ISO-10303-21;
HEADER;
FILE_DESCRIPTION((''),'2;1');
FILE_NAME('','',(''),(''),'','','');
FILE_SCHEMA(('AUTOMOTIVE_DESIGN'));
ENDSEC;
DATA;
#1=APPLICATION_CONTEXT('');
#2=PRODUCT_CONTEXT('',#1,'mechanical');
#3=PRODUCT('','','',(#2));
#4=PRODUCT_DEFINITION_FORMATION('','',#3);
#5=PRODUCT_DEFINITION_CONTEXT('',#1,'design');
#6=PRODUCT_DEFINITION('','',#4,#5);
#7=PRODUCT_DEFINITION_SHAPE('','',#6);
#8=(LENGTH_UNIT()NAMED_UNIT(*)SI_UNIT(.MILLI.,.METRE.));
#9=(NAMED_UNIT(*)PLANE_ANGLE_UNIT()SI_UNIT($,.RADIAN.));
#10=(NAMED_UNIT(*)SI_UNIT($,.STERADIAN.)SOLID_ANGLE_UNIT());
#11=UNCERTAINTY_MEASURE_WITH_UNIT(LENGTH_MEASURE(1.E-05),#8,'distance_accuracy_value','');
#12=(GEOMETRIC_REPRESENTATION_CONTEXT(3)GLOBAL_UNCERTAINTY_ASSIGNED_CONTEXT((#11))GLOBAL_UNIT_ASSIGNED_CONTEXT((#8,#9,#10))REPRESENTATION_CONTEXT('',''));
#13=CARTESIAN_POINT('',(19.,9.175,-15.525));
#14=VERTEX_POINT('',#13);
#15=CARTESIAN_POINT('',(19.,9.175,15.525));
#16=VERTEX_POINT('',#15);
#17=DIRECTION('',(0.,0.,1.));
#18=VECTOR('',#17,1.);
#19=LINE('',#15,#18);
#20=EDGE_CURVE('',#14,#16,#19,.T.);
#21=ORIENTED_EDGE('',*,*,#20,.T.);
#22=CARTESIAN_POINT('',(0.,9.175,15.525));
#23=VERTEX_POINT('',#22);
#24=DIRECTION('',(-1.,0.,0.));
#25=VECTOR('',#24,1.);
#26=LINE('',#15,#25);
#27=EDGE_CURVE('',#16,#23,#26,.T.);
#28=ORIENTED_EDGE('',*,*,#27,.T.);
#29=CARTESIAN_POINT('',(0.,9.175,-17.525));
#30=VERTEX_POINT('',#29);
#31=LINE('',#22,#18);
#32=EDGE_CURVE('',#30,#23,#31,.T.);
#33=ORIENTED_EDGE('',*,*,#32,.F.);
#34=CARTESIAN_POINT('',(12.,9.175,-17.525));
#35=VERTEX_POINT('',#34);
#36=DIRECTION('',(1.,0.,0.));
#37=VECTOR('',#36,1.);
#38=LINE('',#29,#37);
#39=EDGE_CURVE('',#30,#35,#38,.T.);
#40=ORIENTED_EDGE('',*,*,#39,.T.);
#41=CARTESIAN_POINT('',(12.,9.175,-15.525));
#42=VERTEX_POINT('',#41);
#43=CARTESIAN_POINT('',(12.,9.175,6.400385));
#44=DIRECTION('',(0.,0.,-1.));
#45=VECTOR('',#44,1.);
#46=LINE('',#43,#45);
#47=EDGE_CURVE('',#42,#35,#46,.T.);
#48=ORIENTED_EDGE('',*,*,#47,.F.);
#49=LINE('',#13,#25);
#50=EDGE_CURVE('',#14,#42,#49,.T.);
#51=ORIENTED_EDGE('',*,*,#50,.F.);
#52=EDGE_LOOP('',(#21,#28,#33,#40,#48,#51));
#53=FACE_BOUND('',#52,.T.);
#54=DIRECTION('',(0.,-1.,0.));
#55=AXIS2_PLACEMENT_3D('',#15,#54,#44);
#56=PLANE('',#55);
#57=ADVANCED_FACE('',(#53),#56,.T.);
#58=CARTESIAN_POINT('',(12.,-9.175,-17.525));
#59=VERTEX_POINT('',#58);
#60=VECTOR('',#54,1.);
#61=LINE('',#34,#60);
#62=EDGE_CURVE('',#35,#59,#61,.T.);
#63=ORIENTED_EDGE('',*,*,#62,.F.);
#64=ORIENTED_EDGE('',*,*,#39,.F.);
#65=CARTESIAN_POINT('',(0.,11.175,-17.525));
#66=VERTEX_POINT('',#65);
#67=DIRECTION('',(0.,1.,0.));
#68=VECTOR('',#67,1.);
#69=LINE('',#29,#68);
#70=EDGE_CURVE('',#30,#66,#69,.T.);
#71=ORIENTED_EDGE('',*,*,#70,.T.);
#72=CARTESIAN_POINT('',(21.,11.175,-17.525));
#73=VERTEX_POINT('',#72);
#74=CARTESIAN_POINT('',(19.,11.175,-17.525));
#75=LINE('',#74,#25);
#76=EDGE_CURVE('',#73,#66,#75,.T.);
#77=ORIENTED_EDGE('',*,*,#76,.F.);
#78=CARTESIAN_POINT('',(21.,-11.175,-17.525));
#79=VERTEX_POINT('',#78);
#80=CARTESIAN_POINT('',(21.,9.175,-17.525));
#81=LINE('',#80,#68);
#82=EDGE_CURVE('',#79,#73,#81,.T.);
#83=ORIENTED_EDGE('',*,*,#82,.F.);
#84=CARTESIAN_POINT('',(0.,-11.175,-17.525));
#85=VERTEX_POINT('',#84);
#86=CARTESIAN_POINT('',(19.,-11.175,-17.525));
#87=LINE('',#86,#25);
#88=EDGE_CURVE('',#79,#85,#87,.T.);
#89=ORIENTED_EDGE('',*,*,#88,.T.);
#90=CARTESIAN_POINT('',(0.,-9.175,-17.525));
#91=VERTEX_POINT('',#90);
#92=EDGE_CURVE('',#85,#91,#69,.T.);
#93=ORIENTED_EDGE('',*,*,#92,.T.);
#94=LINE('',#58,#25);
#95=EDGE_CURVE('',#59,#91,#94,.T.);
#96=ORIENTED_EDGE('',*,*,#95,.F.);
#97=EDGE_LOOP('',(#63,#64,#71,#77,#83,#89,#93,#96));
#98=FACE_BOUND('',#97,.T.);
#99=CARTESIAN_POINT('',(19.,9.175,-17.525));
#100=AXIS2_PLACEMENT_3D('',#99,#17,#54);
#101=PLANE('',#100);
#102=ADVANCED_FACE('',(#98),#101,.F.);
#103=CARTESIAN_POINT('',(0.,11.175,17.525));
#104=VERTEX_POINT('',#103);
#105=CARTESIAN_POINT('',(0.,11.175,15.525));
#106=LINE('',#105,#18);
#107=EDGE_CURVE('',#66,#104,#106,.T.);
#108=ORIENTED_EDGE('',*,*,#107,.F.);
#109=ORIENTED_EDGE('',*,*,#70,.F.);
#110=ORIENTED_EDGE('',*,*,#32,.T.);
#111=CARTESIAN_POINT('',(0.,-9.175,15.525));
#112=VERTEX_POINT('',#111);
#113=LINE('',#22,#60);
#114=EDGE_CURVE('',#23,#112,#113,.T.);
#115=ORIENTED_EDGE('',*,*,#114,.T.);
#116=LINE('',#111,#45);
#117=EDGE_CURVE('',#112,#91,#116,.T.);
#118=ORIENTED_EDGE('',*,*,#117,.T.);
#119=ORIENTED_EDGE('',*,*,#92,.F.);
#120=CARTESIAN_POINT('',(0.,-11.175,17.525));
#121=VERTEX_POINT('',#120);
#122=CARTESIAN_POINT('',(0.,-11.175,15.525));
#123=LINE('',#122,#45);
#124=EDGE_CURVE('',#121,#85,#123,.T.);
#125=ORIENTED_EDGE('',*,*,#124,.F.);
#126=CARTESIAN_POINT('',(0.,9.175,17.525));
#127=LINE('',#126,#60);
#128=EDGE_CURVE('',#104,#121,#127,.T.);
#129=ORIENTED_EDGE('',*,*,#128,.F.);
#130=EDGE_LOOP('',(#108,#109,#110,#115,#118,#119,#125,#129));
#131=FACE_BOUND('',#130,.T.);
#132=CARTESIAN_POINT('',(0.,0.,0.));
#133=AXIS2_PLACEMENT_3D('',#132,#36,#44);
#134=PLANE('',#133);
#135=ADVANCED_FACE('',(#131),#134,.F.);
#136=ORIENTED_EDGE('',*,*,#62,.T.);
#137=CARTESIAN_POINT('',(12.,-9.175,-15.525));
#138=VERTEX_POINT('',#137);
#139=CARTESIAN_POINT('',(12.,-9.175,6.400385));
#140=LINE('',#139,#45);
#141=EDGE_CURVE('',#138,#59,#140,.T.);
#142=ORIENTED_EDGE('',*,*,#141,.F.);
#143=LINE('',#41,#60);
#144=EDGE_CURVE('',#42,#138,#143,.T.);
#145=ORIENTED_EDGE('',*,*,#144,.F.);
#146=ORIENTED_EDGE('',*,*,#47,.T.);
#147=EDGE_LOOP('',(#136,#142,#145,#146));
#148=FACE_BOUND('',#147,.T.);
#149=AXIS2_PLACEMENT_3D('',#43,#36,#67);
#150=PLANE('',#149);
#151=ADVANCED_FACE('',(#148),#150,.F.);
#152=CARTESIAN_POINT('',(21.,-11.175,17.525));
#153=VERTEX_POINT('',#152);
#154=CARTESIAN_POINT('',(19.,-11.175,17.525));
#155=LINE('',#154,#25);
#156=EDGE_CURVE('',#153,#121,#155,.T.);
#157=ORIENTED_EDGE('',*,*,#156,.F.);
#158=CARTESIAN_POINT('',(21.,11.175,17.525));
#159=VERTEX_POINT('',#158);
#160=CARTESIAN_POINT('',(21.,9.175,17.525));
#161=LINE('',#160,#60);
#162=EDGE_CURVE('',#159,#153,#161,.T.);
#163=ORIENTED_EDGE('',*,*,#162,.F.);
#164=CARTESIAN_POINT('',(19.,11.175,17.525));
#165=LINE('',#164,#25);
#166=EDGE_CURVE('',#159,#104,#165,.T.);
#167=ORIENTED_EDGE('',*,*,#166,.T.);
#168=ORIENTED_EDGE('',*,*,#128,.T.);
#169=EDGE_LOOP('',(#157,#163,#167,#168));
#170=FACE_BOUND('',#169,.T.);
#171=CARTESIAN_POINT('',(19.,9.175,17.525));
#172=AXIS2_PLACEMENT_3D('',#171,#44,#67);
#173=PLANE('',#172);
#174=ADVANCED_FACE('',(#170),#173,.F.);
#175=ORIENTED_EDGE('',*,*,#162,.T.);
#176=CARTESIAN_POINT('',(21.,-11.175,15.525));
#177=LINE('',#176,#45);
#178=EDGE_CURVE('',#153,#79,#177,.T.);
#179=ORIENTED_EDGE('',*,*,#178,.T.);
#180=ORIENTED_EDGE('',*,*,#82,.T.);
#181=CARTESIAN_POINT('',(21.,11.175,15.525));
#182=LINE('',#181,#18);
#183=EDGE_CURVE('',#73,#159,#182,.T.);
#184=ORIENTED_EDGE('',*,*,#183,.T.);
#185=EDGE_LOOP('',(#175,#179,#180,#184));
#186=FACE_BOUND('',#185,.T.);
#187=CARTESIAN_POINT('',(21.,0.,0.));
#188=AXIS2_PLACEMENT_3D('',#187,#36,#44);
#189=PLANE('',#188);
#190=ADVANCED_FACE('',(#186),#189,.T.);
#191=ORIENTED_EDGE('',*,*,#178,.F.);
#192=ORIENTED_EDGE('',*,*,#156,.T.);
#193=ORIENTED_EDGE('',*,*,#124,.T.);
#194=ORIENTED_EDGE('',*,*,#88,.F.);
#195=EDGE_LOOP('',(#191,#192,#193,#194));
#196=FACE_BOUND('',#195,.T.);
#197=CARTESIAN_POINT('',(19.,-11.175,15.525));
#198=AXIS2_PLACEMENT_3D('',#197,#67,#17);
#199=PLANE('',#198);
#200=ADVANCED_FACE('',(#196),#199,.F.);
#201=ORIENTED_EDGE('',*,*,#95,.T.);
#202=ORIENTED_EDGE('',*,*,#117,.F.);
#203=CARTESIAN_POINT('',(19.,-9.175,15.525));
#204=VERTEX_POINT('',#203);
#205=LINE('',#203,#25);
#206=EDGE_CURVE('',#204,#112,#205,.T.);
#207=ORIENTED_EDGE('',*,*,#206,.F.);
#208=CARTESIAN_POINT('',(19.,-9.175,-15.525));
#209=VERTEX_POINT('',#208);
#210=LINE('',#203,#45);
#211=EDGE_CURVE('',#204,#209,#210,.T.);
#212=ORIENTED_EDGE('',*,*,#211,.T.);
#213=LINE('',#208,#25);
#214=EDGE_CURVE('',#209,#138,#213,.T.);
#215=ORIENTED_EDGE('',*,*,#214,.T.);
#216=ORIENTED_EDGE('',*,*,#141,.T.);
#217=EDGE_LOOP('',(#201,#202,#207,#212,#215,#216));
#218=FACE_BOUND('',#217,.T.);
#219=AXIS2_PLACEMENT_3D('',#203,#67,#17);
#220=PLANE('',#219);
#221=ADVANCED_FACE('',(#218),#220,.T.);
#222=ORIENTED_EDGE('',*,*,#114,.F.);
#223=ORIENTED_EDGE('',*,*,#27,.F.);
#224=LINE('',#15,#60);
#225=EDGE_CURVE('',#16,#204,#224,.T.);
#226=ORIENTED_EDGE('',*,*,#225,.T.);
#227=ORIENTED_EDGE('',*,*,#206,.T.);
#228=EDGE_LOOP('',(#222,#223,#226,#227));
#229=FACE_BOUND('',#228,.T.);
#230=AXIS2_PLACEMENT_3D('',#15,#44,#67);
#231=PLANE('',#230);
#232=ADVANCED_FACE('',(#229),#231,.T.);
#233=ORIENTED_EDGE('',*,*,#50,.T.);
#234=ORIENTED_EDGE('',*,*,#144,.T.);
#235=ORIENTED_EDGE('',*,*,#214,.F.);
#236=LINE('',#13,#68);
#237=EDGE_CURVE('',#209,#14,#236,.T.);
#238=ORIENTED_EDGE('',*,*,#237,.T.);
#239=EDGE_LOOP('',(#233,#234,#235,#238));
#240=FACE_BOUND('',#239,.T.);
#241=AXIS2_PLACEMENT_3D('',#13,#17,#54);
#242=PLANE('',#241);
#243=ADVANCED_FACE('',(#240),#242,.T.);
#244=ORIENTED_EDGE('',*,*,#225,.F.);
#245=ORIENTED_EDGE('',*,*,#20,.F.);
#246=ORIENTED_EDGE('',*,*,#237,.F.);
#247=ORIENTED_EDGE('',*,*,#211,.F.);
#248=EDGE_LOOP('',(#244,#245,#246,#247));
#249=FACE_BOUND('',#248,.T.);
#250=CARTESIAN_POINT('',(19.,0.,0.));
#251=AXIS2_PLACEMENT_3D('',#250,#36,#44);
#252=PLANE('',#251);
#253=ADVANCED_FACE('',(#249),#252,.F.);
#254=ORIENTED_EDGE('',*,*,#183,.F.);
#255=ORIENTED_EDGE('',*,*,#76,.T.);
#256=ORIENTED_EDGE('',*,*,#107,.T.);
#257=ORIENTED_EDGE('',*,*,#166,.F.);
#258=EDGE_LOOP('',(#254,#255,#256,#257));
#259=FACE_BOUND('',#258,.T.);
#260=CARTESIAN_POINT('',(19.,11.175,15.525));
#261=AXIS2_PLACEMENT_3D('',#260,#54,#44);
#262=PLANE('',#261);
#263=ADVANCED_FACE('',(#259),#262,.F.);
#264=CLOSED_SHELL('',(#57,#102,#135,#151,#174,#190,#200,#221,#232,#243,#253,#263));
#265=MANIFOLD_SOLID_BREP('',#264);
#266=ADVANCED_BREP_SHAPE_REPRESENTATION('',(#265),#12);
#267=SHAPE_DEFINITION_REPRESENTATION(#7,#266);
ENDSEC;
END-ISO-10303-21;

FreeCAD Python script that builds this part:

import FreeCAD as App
import Part
import Sketcher
Q = App.Units.Quantity


def faces_at(feature, points):
    """Names of the faces that lie closest to the given points."""
    faces = feature.Shape.Faces
    near = lambda p: min(range(len(faces)), key=lambda i: faces[i].distToShape(Part.Vertex(*p))[0])
    return sorted({f"Face{near(p) + 1}" for p in points})


def add_polygon(sketch, points):
    """Adds a closed chain of lines whose ends are joined by coincident constraints."""
    first, n = sketch.GeometryCount, len(points)
    for a, b in zip(points, points[1:] + points[:1]):
        sketch.addGeometry(Part.LineSegment(App.Vector(*a, 0), App.Vector(*b, 0)), False)
    for i in range(n):
        sketch.addConstraint(Sketcher.Constraint("Coincident", first + i, 2, first + (i + 1) % n, 1))

doc = App.newDocument("Part")
body = doc.addObject("PartDesign::Body", "Body")

# Sketch on YZ plane
sketch1 = body.newObject("Sketcher::SketchObject", "Sketch")
sketch1.AttachmentSupport = (doc.getObject("YZ_Plane"), [""])
sketch1.MapMode = "FlatFace"
add_polygon(sketch1, [(9, 16), (-9, 16), (-9, -16), (9, -16)])  # lines 0-3
sketch1.addConstraint([
    Sketcher.Constraint("Horizontal", 0),
    Sketcher.Constraint("Vertical", 1),
    Sketcher.Constraint("Horizontal", 2),
    Sketcher.Constraint("Vertical", 3),
    Sketcher.Constraint("Symmetric", 0, 2, 2, 2, -1, 1),
    Sketcher.Constraint("DistanceX", 0, 2, 0, 1, Q("18.35 mm")),
    Sketcher.Constraint("DistanceY", 1, 2, 1, 1, Q("31.05 mm")),
])
pad1 = body.newObject("PartDesign::Pad", "Pad")
pad1.Profile = sketch1
pad1.Length = 19
doc.recompute()

thickness = body.newObject("PartDesign::Thickness", "Thickness")
thickness.Base = (pad1, faces_at(pad1, [(0, 0, 0)]))
thickness.Value = 2
thickness.Reversed = False
thickness.Join = "Intersection"

# Sketch on XY plane
sketch2 = body.newObject("Sketcher::SketchObject", "Sketch001")
sketch2.AttachmentSupport = (doc.getObject("XY_Plane"), [""])
sketch2.MapMode = "FlatFace"
sketch2.AttachmentOffset = App.Placement(App.Vector(0, 0, -17.525), App.Rotation())
add_polygon(sketch2, [(12, 9), (12, -9), (0, -9), (0, 9)])  # lines 0-3
sketch2.addConstraint([
    Sketcher.Constraint("Vertical", 0),
    Sketcher.Constraint("Horizontal", 1),
    Sketcher.Constraint("Vertical", 2),
    Sketcher.Constraint("Horizontal", 3),
    Sketcher.Constraint("Symmetric", 1, 2, 2, 2, -1, 1),
    Sketcher.Constraint("DistanceX", 1, 2, 1, 1, Q("12 mm")),
    Sketcher.Constraint("DistanceY", 0, 2, 0, 1, Q("18.35 mm")),
])
pocket1 = body.newObject("PartDesign::Pocket", "Pocket")
pocket1.Profile = sketch2
pocket1.Length = 2
pocket1.Reversed = True

doc.recompute()
